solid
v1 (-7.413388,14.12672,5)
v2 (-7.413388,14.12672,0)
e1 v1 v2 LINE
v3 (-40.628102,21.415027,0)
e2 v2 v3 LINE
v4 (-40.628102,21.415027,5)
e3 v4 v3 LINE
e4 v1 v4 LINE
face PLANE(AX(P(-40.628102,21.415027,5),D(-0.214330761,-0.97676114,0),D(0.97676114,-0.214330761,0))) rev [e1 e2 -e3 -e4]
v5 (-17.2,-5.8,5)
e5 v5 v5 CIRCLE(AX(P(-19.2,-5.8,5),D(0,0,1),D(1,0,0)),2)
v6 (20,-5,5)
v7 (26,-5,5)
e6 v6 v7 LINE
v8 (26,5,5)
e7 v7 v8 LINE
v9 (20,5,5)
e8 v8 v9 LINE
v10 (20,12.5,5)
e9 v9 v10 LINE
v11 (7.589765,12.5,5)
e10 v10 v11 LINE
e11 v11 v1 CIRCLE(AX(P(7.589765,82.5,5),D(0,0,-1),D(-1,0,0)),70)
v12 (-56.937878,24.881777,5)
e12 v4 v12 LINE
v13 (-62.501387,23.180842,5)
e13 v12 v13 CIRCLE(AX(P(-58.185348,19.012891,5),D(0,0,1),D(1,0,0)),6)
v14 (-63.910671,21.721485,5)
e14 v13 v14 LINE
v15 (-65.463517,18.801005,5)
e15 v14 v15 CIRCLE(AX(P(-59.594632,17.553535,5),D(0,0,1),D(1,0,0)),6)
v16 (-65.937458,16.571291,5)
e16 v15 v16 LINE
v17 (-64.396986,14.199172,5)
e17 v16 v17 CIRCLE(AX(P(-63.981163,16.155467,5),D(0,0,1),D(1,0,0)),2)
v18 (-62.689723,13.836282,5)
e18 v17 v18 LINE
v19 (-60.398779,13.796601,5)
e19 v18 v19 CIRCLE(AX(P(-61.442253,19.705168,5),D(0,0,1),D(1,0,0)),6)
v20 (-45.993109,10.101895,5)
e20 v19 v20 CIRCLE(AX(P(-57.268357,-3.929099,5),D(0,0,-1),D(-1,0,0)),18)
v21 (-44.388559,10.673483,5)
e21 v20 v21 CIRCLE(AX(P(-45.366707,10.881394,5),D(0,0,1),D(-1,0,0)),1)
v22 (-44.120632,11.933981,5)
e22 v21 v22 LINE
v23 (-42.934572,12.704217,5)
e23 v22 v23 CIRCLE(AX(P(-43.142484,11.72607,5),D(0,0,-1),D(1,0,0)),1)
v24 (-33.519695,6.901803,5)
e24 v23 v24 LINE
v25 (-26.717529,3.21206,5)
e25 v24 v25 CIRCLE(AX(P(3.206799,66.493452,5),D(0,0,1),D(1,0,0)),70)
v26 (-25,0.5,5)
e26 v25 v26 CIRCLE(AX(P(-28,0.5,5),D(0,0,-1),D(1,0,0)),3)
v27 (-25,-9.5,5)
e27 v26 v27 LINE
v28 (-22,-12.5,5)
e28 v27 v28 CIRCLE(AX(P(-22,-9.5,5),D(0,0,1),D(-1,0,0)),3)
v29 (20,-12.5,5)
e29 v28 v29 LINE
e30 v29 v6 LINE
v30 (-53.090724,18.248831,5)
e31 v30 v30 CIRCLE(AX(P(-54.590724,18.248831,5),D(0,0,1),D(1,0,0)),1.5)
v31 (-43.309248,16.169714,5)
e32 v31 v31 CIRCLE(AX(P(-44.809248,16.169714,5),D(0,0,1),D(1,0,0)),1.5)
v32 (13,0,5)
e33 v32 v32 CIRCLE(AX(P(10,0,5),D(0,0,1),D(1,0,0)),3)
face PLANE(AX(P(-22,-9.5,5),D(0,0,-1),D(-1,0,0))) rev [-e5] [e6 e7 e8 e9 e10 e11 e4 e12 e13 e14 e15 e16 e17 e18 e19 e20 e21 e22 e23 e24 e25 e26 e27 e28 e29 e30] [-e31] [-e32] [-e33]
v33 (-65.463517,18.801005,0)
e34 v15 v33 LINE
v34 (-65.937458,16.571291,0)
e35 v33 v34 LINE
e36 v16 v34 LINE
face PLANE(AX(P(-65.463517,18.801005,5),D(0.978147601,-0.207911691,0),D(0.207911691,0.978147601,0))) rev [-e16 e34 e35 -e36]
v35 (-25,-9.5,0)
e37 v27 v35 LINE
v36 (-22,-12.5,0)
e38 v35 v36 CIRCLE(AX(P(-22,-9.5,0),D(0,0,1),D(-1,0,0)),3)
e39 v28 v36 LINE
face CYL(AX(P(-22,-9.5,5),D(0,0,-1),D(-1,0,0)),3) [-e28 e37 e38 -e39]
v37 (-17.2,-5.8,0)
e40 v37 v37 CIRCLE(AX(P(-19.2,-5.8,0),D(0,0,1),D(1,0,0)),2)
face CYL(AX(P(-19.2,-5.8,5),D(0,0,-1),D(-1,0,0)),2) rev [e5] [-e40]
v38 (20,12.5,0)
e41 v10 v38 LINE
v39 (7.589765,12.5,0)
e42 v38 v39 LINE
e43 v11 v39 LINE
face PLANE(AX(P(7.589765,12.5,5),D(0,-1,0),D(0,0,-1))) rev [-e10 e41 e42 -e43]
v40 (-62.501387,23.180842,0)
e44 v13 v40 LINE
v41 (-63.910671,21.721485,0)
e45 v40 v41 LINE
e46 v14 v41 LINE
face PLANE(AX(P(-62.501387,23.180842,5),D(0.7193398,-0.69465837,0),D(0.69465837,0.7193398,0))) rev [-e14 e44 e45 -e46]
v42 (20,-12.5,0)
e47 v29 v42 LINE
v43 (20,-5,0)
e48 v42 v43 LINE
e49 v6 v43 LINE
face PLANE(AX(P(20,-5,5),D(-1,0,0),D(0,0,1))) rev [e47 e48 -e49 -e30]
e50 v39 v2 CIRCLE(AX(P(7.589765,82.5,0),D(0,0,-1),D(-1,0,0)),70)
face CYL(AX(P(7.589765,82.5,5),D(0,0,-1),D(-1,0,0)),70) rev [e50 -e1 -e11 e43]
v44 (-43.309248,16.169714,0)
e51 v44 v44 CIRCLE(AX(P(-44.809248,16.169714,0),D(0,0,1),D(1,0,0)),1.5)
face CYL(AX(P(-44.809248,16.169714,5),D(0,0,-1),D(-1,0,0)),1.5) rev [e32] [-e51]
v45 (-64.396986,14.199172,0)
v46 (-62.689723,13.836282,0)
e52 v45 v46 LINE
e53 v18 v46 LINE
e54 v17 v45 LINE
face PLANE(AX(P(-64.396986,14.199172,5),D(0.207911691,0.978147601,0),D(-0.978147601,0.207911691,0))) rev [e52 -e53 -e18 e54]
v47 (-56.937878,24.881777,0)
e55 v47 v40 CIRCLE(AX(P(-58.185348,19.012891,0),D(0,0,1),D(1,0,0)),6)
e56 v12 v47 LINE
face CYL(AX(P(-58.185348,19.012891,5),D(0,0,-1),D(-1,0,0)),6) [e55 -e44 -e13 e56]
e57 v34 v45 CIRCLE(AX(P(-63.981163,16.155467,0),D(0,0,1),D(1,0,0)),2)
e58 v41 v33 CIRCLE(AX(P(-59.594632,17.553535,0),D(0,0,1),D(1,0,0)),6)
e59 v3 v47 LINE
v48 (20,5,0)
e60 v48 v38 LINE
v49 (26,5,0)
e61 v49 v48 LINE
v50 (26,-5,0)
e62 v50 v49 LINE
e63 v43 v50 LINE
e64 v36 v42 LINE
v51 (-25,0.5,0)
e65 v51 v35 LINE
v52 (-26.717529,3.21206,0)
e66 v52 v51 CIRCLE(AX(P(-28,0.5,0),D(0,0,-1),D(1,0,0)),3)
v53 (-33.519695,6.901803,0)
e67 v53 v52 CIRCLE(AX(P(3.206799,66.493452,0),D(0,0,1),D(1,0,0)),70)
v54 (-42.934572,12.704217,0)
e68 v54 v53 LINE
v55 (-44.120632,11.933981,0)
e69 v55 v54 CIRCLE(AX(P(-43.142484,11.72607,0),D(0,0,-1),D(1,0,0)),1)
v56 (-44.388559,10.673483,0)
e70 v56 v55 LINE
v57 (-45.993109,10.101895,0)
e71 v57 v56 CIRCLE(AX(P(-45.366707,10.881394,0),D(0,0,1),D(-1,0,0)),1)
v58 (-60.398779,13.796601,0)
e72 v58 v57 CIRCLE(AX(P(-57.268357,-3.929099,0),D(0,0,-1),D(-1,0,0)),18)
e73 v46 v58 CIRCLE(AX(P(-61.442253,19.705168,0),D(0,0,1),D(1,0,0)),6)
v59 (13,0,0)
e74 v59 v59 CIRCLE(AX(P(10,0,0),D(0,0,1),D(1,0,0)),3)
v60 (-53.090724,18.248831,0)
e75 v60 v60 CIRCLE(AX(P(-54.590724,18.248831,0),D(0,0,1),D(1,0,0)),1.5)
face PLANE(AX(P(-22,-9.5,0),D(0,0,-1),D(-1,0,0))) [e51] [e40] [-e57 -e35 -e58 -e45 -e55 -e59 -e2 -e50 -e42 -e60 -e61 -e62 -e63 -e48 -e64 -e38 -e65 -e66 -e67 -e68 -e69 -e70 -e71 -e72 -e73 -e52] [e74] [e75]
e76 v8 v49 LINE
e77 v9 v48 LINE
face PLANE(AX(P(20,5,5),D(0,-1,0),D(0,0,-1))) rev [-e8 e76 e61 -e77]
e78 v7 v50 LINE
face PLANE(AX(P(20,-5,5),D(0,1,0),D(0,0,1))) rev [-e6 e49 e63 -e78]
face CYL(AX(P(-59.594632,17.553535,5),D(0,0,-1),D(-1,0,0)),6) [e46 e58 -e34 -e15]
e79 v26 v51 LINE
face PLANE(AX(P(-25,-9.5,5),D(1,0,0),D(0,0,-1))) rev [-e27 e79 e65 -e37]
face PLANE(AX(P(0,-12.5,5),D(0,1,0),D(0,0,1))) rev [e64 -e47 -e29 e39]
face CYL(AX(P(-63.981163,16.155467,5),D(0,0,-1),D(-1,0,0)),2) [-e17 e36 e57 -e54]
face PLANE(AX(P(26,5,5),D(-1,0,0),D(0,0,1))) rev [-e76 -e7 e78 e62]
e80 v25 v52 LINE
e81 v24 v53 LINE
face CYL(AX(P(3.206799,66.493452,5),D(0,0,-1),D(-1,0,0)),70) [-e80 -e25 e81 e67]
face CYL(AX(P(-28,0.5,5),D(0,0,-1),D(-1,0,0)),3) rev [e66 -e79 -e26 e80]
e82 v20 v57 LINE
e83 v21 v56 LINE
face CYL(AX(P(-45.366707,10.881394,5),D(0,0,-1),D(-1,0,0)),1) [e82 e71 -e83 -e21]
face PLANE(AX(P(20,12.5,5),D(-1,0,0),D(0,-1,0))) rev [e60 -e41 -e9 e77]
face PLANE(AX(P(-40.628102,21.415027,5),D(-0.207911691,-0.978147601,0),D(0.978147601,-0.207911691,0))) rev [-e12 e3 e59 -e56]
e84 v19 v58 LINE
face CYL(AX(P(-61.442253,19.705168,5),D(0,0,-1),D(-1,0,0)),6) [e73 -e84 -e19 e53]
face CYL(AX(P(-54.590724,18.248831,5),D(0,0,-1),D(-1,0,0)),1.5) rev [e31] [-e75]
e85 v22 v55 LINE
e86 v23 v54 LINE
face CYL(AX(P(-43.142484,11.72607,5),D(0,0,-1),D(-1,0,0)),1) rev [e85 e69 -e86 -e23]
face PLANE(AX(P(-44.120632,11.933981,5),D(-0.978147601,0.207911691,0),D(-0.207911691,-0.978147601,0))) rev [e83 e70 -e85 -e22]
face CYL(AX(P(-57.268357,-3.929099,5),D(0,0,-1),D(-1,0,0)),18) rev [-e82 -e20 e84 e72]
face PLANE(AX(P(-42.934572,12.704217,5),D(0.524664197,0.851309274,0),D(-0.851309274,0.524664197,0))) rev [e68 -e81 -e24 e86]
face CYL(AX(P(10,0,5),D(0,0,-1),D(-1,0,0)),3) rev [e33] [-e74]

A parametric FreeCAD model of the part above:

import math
import FreeCAD as App
import Part
import Sketcher
from FreeCAD import Vector
Q = App.Units.Quantity

doc = App.newDocument("Part")
params = doc.addObject("Spreadsheet::Sheet", "Params")
for row, (alias, value) in enumerate([
    ("sketch1_diameter", "4 mm"),
    ("sketch1_diameter2", "6 mm"),
    ("sketch1_diameter3", "3 mm"),
    ("sketch1_radius", "70 mm"),
    ("sketch1_radius2", "6 mm"),
    ("pad1_length", "5 mm"),
], start=1):
    params.set(f"A{row}", alias)
    params.set(f"B{row}", "=" + value)
    params.setAlias(f"B{row}", alias)

body = doc.addObject("PartDesign::Body", "Body")

sketch1 = body.newObject("Sketcher::SketchObject", "Sketch")
sketch1.AttachmentSupport = (doc.getObject("XY_Plane"), [""])
sketch1.MapMode = "FlatFace"
sketch1.addGeometry(Part.LineSegment(Vector(20, 12.5, 0), Vector(7.589765, 12.5, 0)), False)
sketch1.addGeometry(Part.ArcOfCircle(Part.Circle(Vector(7.589765, 82.5, 0), Vector(0, 0, 1), 70), math.radians(-102.376268), math.radians(-90)), False)
sketch1.addGeometry(Part.LineSegment(Vector(-7.413388, 14.12672, 0), Vector(-40.628102, 21.415027, 0)), False)
sketch1.addGeometry(Part.LineSegment(Vector(-40.628102, 21.415027, 0), Vector(-56.937878, 24.881777, 0)), False)
sketch1.addGeometry(Part.ArcOfCircle(Part.Circle(Vector(-58.185348, 19.012891, 0), Vector(0, 0, 1), 6), math.radians(78), math.radians(136)), False)
sketch1.addGeometry(Part.LineSegment(Vector(-62.501387, 23.180842, 0), Vector(-63.910671, 21.721485, 0)), False)
sketch1.addGeometry(Part.ArcOfCircle(Part.Circle(Vector(-59.594632, 17.553535, 0), Vector(0, 0, 1), 6), math.radians(136), math.radians(168)), False)
sketch1.addGeometry(Part.LineSegment(Vector(-65.463517, 18.801005, 0), Vector(-65.937458, 16.571291, 0)), False)
sketch1.addGeometry(Part.ArcOfCircle(Part.Circle(Vector(-63.981163, 16.155467, 0), Vector(0, 0, 1), 2), math.radians(168), math.radians(258)), False)
sketch1.addGeometry(Part.LineSegment(Vector(-64.396986, 14.199172, 0), Vector(-62.689723, 13.836282, 0)), False)
sketch1.addGeometry(Part.ArcOfCircle(Part.Circle(Vector(-61.442253, 19.705168, 0), Vector(0, 0, 1), 6), math.radians(-102), math.radians(-79.98463)), False)
sketch1.addGeometry(Part.ArcOfCircle(Part.Circle(Vector(-57.268357, -3.929099, 0), Vector(0, 0, 1), 18), math.radians(51.214788), math.radians(100.01537)), False)
sketch1.addGeometry(Part.ArcOfCircle(Part.Circle(Vector(-45.366707, 10.881394, 0), Vector(0, 0, 1), 1), math.radians(-128.785212), math.radians(-12)), False)
sketch1.addGeometry(Part.LineSegment(Vector(-44.388559, 10.673483, 0), Vector(-44.120632, 11.933981, 0)), False)
sketch1.addGeometry(Part.ArcOfCircle(Part.Circle(Vector(-43.142484, 11.72607, 0), Vector(0, 0, 1), 1), math.radians(78), math.radians(168)), False)
sketch1.addGeometry(Part.LineSegment(Vector(-42.934572, 12.704217, 0), Vector(-33.519695, 6.901803, 0)), False)
sketch1.addGeometry(Part.ArcOfCircle(Part.Circle(Vector(3.206799, 66.493452, 0), Vector(0, 0, 1), 70), math.radians(-121.64564), math.radians(-115.3084)), False)
sketch1.addGeometry(Part.ArcOfCircle(Part.Circle(Vector(-28, 0.5, 0), Vector(0, 0, 1), 3), math.radians(0), math.radians(64.6916)), False)
sketch1.addGeometry(Part.LineSegment(Vector(-25, 0.5, 0), Vector(-25, -9.5, 0)), False)
sketch1.addGeometry(Part.ArcOfCircle(Part.Circle(Vector(-22, -9.5, 0), Vector(0, 0, 1), 3), math.radians(180), math.radians(270)), False)
sketch1.addGeometry(Part.LineSegment(Vector(-22, -12.5, 0), Vector(20, -12.5, 0)), False)
sketch1.addGeometry(Part.LineSegment(Vector(20, -12.5, 0), Vector(20, -5, 0)), False)
sketch1.addGeometry(Part.LineSegment(Vector(20, -5, 0), Vector(26, -5, 0)), False)
sketch1.addGeometry(Part.LineSegment(Vector(26, -5, 0), Vector(26, 5, 0)), False)
sketch1.addGeometry(Part.LineSegment(Vector(26, 5, 0), Vector(20, 5, 0)), False)
sketch1.addGeometry(Part.LineSegment(Vector(20, 5, 0), Vector(20, 12.5, 0)), False)
sketch1.addGeometry(Part.Circle(Vector(-19.2, -5.8, 0), Vector(0, 0, 1), 2), False)
sketch1.addGeometry(Part.Circle(Vector(10, 0, 0), Vector(0, 0, 1), 3), False)
sketch1.addGeometry(Part.Circle(Vector(-44.809248, 16.169714, 0), Vector(0, 0, 1), 1.5), False)
sketch1.addGeometry(Part.Circle(Vector(-54.590724, 18.248831, 0), Vector(0, 0, 1), 1.5), False)
sketch1.addConstraint(Sketcher.Constraint("Tangent", 0, 2, 1, 2))
sketch1.addConstraint(Sketcher.Constraint("Tangent", 1, 1, 2, 1))
sketch1.addConstraint(Sketcher.Constraint("Coincident", 2, 2, 3, 1))
sketch1.addConstraint(Sketcher.Constraint("Tangent", 3, 2, 4, 1))
sketch1.addConstraint(Sketcher.Constraint("Tangent", 4, 2, 5, 1))
sketch1.addConstraint(Sketcher.Constraint("Tangent", 5, 2, 6, 1))
sketch1.addConstraint(Sketcher.Constraint("Tangent", 6, 2, 7, 1))
sketch1.addConstraint(Sketcher.Constraint("Tangent", 7, 2, 8, 1))
sketch1.addConstraint(Sketcher.Constraint("Tangent", 8, 2, 9, 1))
sketch1.addConstraint(Sketcher.Constraint("Tangent", 9, 2, 10, 1))
sketch1.addConstraint(Sketcher.Constraint("Tangent", 10, 2, 11, 2))
sketch1.addConstraint(Sketcher.Constraint("Tangent", 11, 1, 12, 1))
sketch1.addConstraint(Sketcher.Constraint("Tangent", 12, 2, 13, 1))
sketch1.addConstraint(Sketcher.Constraint("Tangent", 13, 2, 14, 2))
sketch1.addConstraint(Sketcher.Constraint("Coincident", 14, 1, 15, 1))
sketch1.addConstraint(Sketcher.Constraint("Tangent", 15, 2, 16, 1))
sketch1.addConstraint(Sketcher.Constraint("Tangent", 16, 2, 17, 2))
sketch1.addConstraint(Sketcher.Constraint("Tangent", 17, 1, 18, 1))
sketch1.addConstraint(Sketcher.Constraint("Tangent", 18, 2, 19, 1))
sketch1.addConstraint(Sketcher.Constraint("Tangent", 19, 2, 20, 1))
sketch1.addConstraint(Sketcher.Constraint("Coincident", 20, 2, 21, 1))
sketch1.addConstraint(Sketcher.Constraint("Coincident", 21, 2, 22, 1))
sketch1.addConstraint(Sketcher.Constraint("Coincident", 22, 2, 23, 1))
sketch1.addConstraint(Sketcher.Constraint("Coincident", 23, 2, 24, 1))
sketch1.addConstraint(Sketcher.Constraint("Coincident", 24, 2, 25, 1))
sketch1.addConstraint(Sketcher.Constraint("Coincident", 25, 2, 0, 1))
sketch1.addConstraint(Sketcher.Constraint("Horizontal", 0))
sketch1.addConstraint(Sketcher.Constraint("Vertical", 18))
sketch1.addConstraint(Sketcher.Constraint("Horizontal", 20))
sketch1.addConstraint(Sketcher.Constraint("Vertical", 21))
sketch1.addConstraint(Sketcher.Constraint("Horizontal", 22))
sketch1.addConstraint(Sketcher.Constraint("Vertical", 23))
sketch1.addConstraint(Sketcher.Constraint("Horizontal", 24))
sketch1.addConstraint(Sketcher.Constraint("Vertical", 25))
sketch1.addConstraint(Sketcher.Constraint("Equal", 4, 6))
sketch1.addConstraint(Sketcher.Constraint("Equal", 6, 10))
sketch1.addConstraint(Sketcher.Constraint("Equal", 12, 14))
sketch1.addConstraint(Sketcher.Constraint("Equal", 1, 16))
sketch1.addConstraint(Sketcher.Constraint("Equal", 17, 19))
sketch1.addConstraint(Sketcher.Constraint("Equal", 8, 26))
sketch1.addConstraint(Sketcher.Constraint("Equal", 19, 27))
sketch1.addConstraint(Sketcher.Constraint("Equal", 28, 29))
sketch1.addConstraint(Sketcher.Constraint("Symmetric", 21, 2, 24, 2, -1))
sketch1.addConstraint(Sketcher.Constraint("PointOnObject", 27, 3, -1))
sketch1.addConstraint(Sketcher.Constraint("Perpendicular", 3, 7))
sketch1.addConstraint(Sketcher.Constraint("Perpendicular", 7, 9))
sketch1.addConstraint(Sketcher.Constraint("Perpendicular", 9, 13))
sketch1.addConstraint(Sketcher.Constraint("Equal", 18, 23))
sketch1.addConstraint(Sketcher.Constraint("Equal", 21, 25))
sketch1.addConstraint(Sketcher.Constraint("Diameter", 26, Q("4 mm")))
sketch1.addConstraint(Sketcher.Constraint("Diameter", 27, Q("6 mm")))
sketch1.addConstraint(Sketcher.Constraint("Diameter", 28, Q("3 mm")))
sketch1.addConstraint(Sketcher.Constraint("Radius", 1, Q("70 mm")))
sketch1.addConstraint(Sketcher.Constraint("Radius", 4, Q("6 mm")))
sketch1.addConstraint(Sketcher.Constraint("Radius", 11, Q("18 mm")))
sketch1.addConstraint(Sketcher.Constraint("Radius", 12, Q("1 mm")))
sketch1.addConstraint(Sketcher.Constraint("DistanceX", 20, 1, 20, 2, Q("42 mm")))
sketch1.addConstraint(Sketcher.Constraint("DistanceX", 22, 1, 22, 2, Q("6 mm")))
sketch1.addConstraint(Sketcher.Constraint("DistanceY", 18, 2, 18, 1, Q("10 mm")))
sketch1.addConstraint(Sketcher.Constraint("Angle", 3, Q("168 deg")))
sketch1.addConstraint(Sketcher.Constraint("Angle", 5, Q("-134 deg")))
sketch1.addConstraint(Sketcher.Constraint("DistanceY", 21, 1, 21, 2, Q("7.5 mm")))
sketch1.addConstraint(Sketcher.Constraint("DistanceX", 17, 3, -1, 1, Q("28 mm")))
sketch1.addConstraint(Sketcher.Constraint("DistanceX", -1, 1, 27, 3, Q("10 mm")))
sketch1.addConstraint(Sketcher.Constraint("DistanceX", 26, 3, -1, 1, Q("19.2 mm")))
sketch1.addConstraint(Sketcher.Constraint("DistanceY", 26, 3, -1, 1, Q("5.8 mm")))
sketch1.addConstraint(Sketcher.Constraint("DistanceY", 11, 3, -1, 1, Q("3.929099 mm")))
sketch1.addConstraint(Sketcher.Constraint("DistanceX", -1, 1, 16, 3, Q("3.206799 mm")))
sketch1.addConstraint(Sketcher.Constraint("DistanceY", -1, 1, 10, 2, Q("13.796601 mm")))
sketch1.addConstraint(Sketcher.Constraint("DistanceY", 8, 3, 10, 3, Q("3.5497 mm")))
sketch1.addConstraint(Sketcher.Constraint("DistanceY", 14, 3, 10, 3, Q("7.979098 mm")))
sketch1.addConstraint(Sketcher.Constraint("DistanceX", 4, 3, 28, 3, Q("13.3761 mm")))
sketch1.addConstraint(Sketcher.Constraint("DistanceY", 12, 2, 13, 2, Q("1.260499 mm")))
sketch1.addConstraint(Sketcher.Constraint("Distance", 2, Q("34.004951 mm")))
sketch1.addConstraint(Sketcher.Constraint("Distance", 15, Q("11.059292 mm")))
sketch1.addConstraint(Sketcher.Constraint("DistanceX", 0, 2, 0, 1, Q("12.410235 mm")))
sketch1.addConstraint(Sketcher.Constraint("DistanceY", -1, 1, 4, 3, Q("19.012891 mm")))
sketch1.addConstraint(Sketcher.Constraint("DistanceX", 6, 3, -1, 1, Q("59.594632 mm")))
sketch1.addConstraint(Sketcher.Constraint("DistanceX", 28, 3, -1, 1, Q("44.809248 mm")))
sketch1.addConstraint(Sketcher.Constraint("DistanceY", -1, 1, 29, 3, Q("18.248831 mm")))
sketch1.addConstraint(Sketcher.Constraint("DistanceY", 12, 3, 28, 3, Q("5.288319 mm")))
sketch1.addConstraint(Sketcher.Constraint("DistanceX", 10, 3, 29, 3, Q("6.851529 mm")))
sketch1.setExpression("Constraints[49]", "Params.sketch1_diameter")
sketch1.setExpression("Constraints[50]", "Params.sketch1_diameter2")
sketch1.setExpression("Constraints[51]", "Params.sketch1_diameter3")
sketch1.setExpression("Constraints[52]", "Params.sketch1_radius")
sketch1.setExpression("Constraints[53]", "Params.sketch1_radius2")
pad1 = body.newObject("PartDesign::Pad", "Pad")
pad1.Profile = sketch1
pad1.setExpression("Length", "Params.pad1_length")

doc.recompute()
